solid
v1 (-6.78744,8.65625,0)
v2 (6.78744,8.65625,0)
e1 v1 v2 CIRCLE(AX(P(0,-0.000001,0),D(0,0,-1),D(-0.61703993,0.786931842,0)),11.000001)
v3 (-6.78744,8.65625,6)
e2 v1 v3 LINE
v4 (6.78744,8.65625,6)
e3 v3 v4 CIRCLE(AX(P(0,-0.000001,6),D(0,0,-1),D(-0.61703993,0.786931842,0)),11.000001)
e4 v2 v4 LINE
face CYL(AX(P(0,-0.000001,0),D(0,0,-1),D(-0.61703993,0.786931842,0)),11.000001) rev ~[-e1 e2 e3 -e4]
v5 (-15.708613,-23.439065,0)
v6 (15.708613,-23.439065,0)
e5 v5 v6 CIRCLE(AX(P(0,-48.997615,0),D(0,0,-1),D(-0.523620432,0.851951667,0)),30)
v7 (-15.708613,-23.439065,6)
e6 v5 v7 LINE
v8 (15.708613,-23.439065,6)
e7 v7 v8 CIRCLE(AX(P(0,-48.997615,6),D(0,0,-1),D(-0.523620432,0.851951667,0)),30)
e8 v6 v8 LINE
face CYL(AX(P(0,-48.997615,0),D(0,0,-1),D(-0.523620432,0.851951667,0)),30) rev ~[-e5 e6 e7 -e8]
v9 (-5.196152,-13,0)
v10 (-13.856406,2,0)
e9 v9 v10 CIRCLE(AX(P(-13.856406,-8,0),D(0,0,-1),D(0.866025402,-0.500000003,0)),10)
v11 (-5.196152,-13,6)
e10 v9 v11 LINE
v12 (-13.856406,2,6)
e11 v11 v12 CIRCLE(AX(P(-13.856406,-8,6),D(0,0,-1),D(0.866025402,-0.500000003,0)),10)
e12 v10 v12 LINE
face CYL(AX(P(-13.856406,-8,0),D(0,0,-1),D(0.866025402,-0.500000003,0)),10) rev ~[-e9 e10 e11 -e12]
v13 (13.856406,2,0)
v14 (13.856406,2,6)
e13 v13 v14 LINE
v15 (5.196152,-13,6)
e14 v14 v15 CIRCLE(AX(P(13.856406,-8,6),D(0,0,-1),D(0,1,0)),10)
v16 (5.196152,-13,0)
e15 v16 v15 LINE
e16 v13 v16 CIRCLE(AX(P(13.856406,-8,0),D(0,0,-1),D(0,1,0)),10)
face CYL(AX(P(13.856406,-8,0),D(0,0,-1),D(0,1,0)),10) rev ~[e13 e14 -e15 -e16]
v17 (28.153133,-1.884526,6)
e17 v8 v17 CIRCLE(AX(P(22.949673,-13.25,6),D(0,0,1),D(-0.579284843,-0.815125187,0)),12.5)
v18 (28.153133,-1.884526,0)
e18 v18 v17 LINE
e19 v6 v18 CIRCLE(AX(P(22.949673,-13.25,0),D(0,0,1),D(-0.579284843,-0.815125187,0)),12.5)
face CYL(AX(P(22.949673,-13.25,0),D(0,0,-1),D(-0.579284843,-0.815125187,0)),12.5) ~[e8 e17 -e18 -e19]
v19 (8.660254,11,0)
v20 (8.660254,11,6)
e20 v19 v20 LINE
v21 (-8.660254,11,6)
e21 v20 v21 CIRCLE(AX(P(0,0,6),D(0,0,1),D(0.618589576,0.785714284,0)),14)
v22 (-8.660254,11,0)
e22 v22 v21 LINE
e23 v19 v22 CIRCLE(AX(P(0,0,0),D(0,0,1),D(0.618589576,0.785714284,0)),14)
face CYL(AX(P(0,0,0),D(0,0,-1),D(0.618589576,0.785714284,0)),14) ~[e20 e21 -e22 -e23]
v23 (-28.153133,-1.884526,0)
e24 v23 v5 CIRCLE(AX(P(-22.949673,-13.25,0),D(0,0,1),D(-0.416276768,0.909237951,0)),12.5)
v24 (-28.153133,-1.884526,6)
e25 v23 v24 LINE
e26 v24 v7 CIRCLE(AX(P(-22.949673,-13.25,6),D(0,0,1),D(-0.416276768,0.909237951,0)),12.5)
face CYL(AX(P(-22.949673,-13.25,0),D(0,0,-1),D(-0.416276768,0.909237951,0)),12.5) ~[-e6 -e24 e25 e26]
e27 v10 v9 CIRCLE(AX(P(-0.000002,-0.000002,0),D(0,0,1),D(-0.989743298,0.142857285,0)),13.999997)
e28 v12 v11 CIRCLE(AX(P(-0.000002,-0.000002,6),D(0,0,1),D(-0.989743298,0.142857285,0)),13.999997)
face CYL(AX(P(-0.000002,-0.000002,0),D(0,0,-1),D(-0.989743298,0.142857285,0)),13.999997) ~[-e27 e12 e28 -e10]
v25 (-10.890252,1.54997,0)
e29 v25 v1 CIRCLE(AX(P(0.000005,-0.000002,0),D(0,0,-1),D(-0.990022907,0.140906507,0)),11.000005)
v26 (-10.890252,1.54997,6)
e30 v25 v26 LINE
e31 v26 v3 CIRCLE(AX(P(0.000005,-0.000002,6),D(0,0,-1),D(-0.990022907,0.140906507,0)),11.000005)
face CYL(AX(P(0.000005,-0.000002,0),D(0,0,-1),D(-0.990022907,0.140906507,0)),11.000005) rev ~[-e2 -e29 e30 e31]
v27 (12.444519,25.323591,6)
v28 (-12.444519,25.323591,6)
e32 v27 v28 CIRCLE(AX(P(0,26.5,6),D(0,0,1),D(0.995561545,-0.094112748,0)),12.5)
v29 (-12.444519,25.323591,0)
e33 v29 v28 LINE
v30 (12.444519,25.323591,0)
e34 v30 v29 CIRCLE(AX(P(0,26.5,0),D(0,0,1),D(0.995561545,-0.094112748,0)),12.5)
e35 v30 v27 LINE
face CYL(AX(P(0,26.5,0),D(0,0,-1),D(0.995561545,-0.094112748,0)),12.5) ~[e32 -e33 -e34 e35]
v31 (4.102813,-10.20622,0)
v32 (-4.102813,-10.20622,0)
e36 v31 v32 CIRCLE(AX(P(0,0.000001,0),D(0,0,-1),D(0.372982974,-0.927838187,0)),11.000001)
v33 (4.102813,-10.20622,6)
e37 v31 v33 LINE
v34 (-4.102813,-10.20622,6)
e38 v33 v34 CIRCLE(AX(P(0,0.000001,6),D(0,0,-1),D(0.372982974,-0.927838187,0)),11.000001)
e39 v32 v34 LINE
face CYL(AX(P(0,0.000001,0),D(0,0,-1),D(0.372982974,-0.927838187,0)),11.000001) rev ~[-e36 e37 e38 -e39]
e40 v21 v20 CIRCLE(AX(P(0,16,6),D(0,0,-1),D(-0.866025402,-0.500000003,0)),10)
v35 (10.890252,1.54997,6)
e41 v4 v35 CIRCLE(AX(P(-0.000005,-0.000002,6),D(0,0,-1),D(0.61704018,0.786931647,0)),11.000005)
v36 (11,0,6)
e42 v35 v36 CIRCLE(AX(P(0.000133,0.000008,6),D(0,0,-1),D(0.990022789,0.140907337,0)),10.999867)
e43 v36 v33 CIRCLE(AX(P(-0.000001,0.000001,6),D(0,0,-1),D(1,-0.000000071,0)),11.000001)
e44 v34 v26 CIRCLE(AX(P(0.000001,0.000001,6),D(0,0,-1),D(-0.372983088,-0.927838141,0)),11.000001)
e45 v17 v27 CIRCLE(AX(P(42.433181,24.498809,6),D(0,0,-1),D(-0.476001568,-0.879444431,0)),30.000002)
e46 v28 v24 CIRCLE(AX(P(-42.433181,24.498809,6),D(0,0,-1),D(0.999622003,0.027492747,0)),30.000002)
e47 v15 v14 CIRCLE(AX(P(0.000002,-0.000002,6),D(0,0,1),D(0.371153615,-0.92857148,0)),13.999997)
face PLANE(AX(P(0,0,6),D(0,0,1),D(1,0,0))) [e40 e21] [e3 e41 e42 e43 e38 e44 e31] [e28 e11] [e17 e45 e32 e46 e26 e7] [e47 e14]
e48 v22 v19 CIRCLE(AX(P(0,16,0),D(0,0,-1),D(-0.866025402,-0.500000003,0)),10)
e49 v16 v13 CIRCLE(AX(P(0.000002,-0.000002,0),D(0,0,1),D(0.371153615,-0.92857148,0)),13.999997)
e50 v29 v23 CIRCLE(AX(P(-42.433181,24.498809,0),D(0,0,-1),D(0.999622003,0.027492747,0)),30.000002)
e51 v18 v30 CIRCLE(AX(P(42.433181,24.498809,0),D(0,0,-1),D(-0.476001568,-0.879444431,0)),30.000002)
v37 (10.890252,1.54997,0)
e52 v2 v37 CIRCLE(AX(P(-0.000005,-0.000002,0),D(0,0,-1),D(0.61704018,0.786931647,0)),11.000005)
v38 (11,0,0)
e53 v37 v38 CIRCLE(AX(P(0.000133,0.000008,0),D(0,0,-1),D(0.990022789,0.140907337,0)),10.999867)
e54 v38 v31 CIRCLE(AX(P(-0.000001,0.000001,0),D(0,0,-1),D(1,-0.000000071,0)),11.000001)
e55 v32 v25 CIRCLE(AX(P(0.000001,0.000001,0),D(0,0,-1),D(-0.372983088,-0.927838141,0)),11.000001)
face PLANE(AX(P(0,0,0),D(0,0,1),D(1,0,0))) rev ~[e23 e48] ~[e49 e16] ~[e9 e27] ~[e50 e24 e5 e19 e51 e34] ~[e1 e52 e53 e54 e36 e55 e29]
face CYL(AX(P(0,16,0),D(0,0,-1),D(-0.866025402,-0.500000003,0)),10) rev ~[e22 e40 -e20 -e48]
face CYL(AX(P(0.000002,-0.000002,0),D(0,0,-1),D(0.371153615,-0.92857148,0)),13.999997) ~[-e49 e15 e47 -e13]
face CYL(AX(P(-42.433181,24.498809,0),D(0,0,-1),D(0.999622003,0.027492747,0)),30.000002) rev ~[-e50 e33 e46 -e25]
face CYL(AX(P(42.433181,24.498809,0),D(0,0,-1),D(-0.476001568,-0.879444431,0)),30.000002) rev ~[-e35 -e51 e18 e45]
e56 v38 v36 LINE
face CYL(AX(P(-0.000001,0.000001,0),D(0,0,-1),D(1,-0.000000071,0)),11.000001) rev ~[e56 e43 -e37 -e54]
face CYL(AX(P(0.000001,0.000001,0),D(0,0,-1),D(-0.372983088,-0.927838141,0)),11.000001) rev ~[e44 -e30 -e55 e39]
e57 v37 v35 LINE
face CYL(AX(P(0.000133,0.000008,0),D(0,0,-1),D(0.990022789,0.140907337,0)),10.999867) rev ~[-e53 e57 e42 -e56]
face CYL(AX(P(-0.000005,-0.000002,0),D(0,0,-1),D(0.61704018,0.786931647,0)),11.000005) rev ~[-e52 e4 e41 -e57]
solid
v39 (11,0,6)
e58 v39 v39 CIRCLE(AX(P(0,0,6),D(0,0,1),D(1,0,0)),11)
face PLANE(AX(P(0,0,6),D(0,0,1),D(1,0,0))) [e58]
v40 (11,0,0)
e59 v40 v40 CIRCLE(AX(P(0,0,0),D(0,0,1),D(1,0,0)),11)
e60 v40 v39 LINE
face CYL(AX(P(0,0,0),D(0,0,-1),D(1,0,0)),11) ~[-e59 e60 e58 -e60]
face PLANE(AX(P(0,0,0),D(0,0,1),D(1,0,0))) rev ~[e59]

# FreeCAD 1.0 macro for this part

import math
import FreeCAD as App
import Part
import Sketcher

V = App.Vector

doc = App.newDocument("Part")
params = doc.addObject("Spreadsheet::Sheet", "Params")
for row, (alias, value) in enumerate([
    ("sketch1_radius", "30.000002 mm"),
    ("sketch1_radius2", "30.000002 mm"),
    ("sketch1_radius3", "30 mm"),
    ("sketch1_radius4", "10 mm"),
    ("sketch1_radius5", "10 mm"),
    ("pad1_length", "6 mm"),
    ("sketch2_diameter", "22 mm"),
    ("pad2_length", "6 mm"),
], start=1):
    params.set(f"A{row}", alias)
    params.set(f"B{row}", "=" + value)
    params.setAlias(f"B{row}", alias)

body = doc.addObject("PartDesign::Body", "Body")

sketch1 = doc.addObject("Sketcher::SketchObject", "Sketch")
body.addObject(sketch1)
sketch1.AttachmentSupport = (doc.XY_Plane, [""])
sketch1.MapMode = "FlatFace"
sketch1.addGeometry(Part.ArcOfCircle(Part.Circle(V(42.433181, 24.498809, 0), V(0, 0, 1), 30.000002), math.radians(178.424583), math.radians(241.575418)), False)
sketch1.addGeometry(Part.ArcOfCircle(Part.Circle(V(0, 26.5, 0), V(0, 0, 1), 12.5), math.radians(-5.400255), math.radians(185.400255)), False)
sketch1.addGeometry(Part.ArcOfCircle(Part.Circle(V(-42.433181, 24.498809, 0), V(0, 0, 1), 30.000002), math.radians(-61.575418), math.radians(1.575417)), False)
sketch1.addGeometry(Part.ArcOfCircle(Part.Circle(V(-22.949673, -13.25, 0), V(0, 0, 1), 12.5), math.radians(114.599746), math.radians(305.400258)), False)
sketch1.addGeometry(Part.ArcOfCircle(Part.Circle(V(0, -48.997615, 0), V(0, 0, 1), 30), math.radians(58.424582), math.radians(121.575418)), False)
sketch1.addGeometry(Part.ArcOfCircle(Part.Circle(V(22.949673, -13.25, 0), V(0, 0, 1), 12.5), math.radians(-125.400258), math.radians(65.400254)), False)
sketch1.addGeometry(Part.ArcOfCircle(Part.Circle(V(-13.856406, -8, 0), V(0, 0, 1), 10), math.radians(90), math.radians(330)), False)
sketch1.addGeometry(Part.ArcOfCircle(Part.Circle(V(-0.000002, -0.000002, 0), V(0, 0, 1), 13.999997), math.radians(171.786781), math.radians(248.213219)), False)
sketch1.addGeometry(Part.ArcOfCircle(Part.Circle(V(13.856406, -8, 0), V(0, 0, 1), 10), math.radians(-150), math.radians(90)), False)
sketch1.addGeometry(Part.ArcOfCircle(Part.Circle(V(0.000002, -0.000002, 0), V(0, 0, 1), 13.999997), math.radians(-68.213219), math.radians(8.213219)), False)
sketch1.addGeometry(Part.ArcOfCircle(Part.Circle(V(0.000001, 0.000001, 0), V(0, 0, 1), 11.000001), math.radians(171.899707), math.radians(248.10029)), False)
sketch1.addGeometry(Part.ArcOfCircle(Part.Circle(V(0.000005, -0.000002, 0), V(0, 0, 1), 11.000005), math.radians(128.100313), math.radians(171.899695)), False)
sketch1.addGeometry(Part.ArcOfCircle(Part.Circle(V(0, -0.000001, 0), V(0, 0, 1), 11.000001), math.radians(51.899705), math.radians(128.100295)), False)
sketch1.addGeometry(Part.ArcOfCircle(Part.Circle(V(-0.000005, -0.000002, 0), V(0, 0, 1), 11.000005), math.radians(8.100305), math.radians(51.899687)), False)
sketch1.addGeometry(Part.ArcOfCircle(Part.Circle(V(0.000133, 0.000008, 0), V(0, 0, 1), 10.999867), math.radians(-0.000042), math.radians(8.100353)), False)
sketch1.addGeometry(Part.ArcOfCircle(Part.Circle(V(-0.000001, 0.000001, 0), V(0, 0, 1), 11.000001), math.radians(-68.100291), math.radians(-0.000004)), False)
sketch1.addGeometry(Part.ArcOfCircle(Part.Circle(V(0, 0.000001, 0), V(0, 0, 1), 11.000001), math.radians(-111.899703), math.radians(-68.100297)), False)
sketch1.addGeometry(Part.ArcOfCircle(Part.Circle(V(0, 0, 0), V(0, 0, 1), 14), math.radians(51.786789), math.radians(128.213211)), False)
sketch1.addGeometry(Part.ArcOfCircle(Part.Circle(V(0, 16, 0), V(0, 0, 1), 10), math.radians(-30), math.radians(210)), False)
sketch1.addConstraint(Sketcher.Constraint("Coincident", 0, 1, 1, 1))
sketch1.addConstraint(Sketcher.Constraint("Coincident", 1, 2, 2, 2))
sketch1.addConstraint(Sketcher.Constraint("Coincident", 2, 1, 3, 1))
sketch1.addConstraint(Sketcher.Constraint("Coincident", 3, 2, 4, 2))
sketch1.addConstraint(Sketcher.Constraint("Coincident", 4, 1, 5, 1))
sketch1.addConstraint(Sketcher.Constraint("Coincident", 5, 2, 0, 2))
sketch1.addConstraint(Sketcher.Constraint("Coincident", 6, 1, 7, 1))
sketch1.addConstraint(Sketcher.Constraint("Coincident", 7, 2, 6, 2))
sketch1.addConstraint(Sketcher.Constraint("Coincident", 8, 1, 9, 1))
sketch1.addConstraint(Sketcher.Constraint("Coincident", 9, 2, 8, 2))
sketch1.addConstraint(Sketcher.Constraint("Coincident", 10, 1, 11, 2))
sketch1.addConstraint(Sketcher.Constraint("Coincident", 11, 1, 12, 2))
sketch1.addConstraint(Sketcher.Constraint("Coincident", 12, 1, 13, 2))
sketch1.addConstraint(Sketcher.Constraint("Coincident", 13, 1, 14, 2))
sketch1.addConstraint(Sketcher.Constraint("Coincident", 14, 1, 15, 2))
sketch1.addConstraint(Sketcher.Constraint("Coincident", 15, 1, 16, 2))
sketch1.addConstraint(Sketcher.Constraint("Coincident", 16, 1, 10, 2))
sketch1.addConstraint(Sketcher.Constraint("Coincident", 17, 1, 18, 1))
sketch1.addConstraint(Sketcher.Constraint("Coincident", 18, 2, 17, 2))
sketch1.addConstraint(Sketcher.Constraint("Coincident", 7, 3, -1, 1))
sketch1.addConstraint(Sketcher.Constraint("Coincident", 9, 3, -1, 1))
sketch1.addConstraint(Sketcher.Constraint("Coincident", 10, 3, -1, 1))
sketch1.addConstraint(Sketcher.Constraint("Coincident", 11, 3, -1, 1))
sketch1.addConstraint(Sketcher.Constraint("Coincident", 12, 3, -1, 1))
sketch1.addConstraint(Sketcher.Constraint("Coincident", 13, 3, -1, 1))
sketch1.addConstraint(Sketcher.Constraint("Coincident", 15, 3, -1, 1))
sketch1.addConstraint(Sketcher.Constraint("Coincident", 16, 3, -1, 1))
sketch1.addConstraint(Sketcher.Constraint("Coincident", 17, 3, -1, 1))
sketch1.addConstraint(Sketcher.Constraint("PointOnObject", 1, 3, -2))
sketch1.addConstraint(Sketcher.Constraint("PointOnObject", 4, 3, -2))
sketch1.addConstraint(Sketcher.Constraint("PointOnObject", 18, 3, -2))
sketch1.addConstraint(Sketcher.Constraint("PointOnObject", 14, 1, -1))
sketch1.addConstraint(Sketcher.Constraint("Radius", 0, 30.000002))
sketch1.addConstraint(Sketcher.Constraint("Radius", 2, 30.000002))
sketch1.addConstraint(Sketcher.Constraint("Radius", 4, 30.0))
sketch1.addConstraint(Sketcher.Constraint("Radius", 6, 10.0))
sketch1.addConstraint(Sketcher.Constraint("Radius", 8, 10.0))
sketch1.addConstraint(Sketcher.Constraint("Radius", 10, 11.000001))
sketch1.addConstraint(Sketcher.Constraint("Radius", 17, 14.0))
sketch1.addConstraint(Sketcher.Constraint("Radius", 18, 10.0))
sketch1.addConstraint(Sketcher.Constraint("Radius", 1, 12.5))
sketch1.addConstraint(Sketcher.Constraint("Radius", 3, 12.5))
sketch1.addConstraint(Sketcher.Constraint("Radius", 5, 12.5))
sketch1.addConstraint(Sketcher.Constraint("DistanceY", 6, 3, -1, 1, 8.0))
sketch1.addConstraint(Sketcher.Constraint("DistanceY", 8, 3, -1, 1, 8.0))
sketch1.addConstraint(Sketcher.Constraint("DistanceY", -1, 1, 18, 3, 16.0))
sketch1.addConstraint(Sketcher.Constraint("DistanceY", 7, 2, -1, 1, 13.0))
sketch1.addConstraint(Sketcher.Constraint("DistanceY", 8, 1, -1, 1, 13.0))
sketch1.addConstraint(Sketcher.Constraint("DistanceY", -1, 1, 1, 3, 26.5))
sketch1.addConstraint(Sketcher.Constraint("DistanceY", 3, 3, -1, 1, 13.25))
sketch1.addConstraint(Sketcher.Constraint("DistanceY", 5, 3, -1, 1, 13.25))
sketch1.addConstraint(Sketcher.Constraint("DistanceX", 17, 1, 13, 1, 2.229998))
sketch1.addConstraint(Sketcher.Constraint("DistanceX", 10, 1, 18, 2, 2.229998))
sketch1.addConstraint(Sketcher.Constraint("Radius", 7, 13.999997))
sketch1.addConstraint(Sketcher.Constraint("Radius", 9, 13.999997))
sketch1.addConstraint(Sketcher.Constraint("Radius", 14, 10.999867))
sketch1.addConstraint(Sketcher.Constraint("DistanceX", 14, 3, 5, 2, 28.153))
sketch1.addConstraint(Sketcher.Constraint("DistanceX", -1, 1, 0, 3, 42.433181))
sketch1.addConstraint(Sketcher.Constraint("DistanceY", -1, 1, 0, 3, 24.498809))
sketch1.addConstraint(Sketcher.Constraint("DistanceX", 2, 3, -1, 1, 42.433181))
sketch1.addConstraint(Sketcher.Constraint("DistanceY", -1, 1, 2, 3, 24.498809))
sketch1.addConstraint(Sketcher.Constraint("DistanceX", 11, 1, -1, 1, 6.78744))
sketch1.addConstraint(Sketcher.Constraint("DistanceX", -1, 1, 12, 1, 6.78744))
sketch1.addConstraint(Sketcher.Constraint("DistanceY", 15, 1, -1, 1, 10.20622))
sketch1.addConstraint(Sketcher.Constraint("DistanceY", 16, 1, -1, 1, 10.20622))
sketch1.addConstraint(Sketcher.Constraint("DistanceX", 3, 3, 7, 3, 22.949671))
sketch1.addConstraint(Sketcher.Constraint("DistanceX", 3, 3, 3, 2, 7.24106))
sketch1.setExpression("Constraints[32]", "Params.sketch1_radius")
sketch1.setExpression("Constraints[33]", "Params.sketch1_radius2")
sketch1.setExpression("Constraints[34]", "Params.sketch1_radius3")
sketch1.setExpression("Constraints[35]", "Params.sketch1_radius4")
sketch1.setExpression("Constraints[36]", "Params.sketch1_radius5")
pad1 = doc.addObject("PartDesign::Pad", "Pad")
body.addObject(pad1)
pad1.Profile = sketch1
pad1.setExpression("Length", "Params.pad1_length")
body2 = doc.addObject("PartDesign::Body", "Body001")

sketch2 = doc.addObject("Sketcher::SketchObject", "Sketch001")
body2.addObject(sketch2)
sketch2.AttachmentSupport = (doc.getObject("XY_Plane001"), [""])
sketch2.MapMode = "FlatFace"
sketch2.addGeometry(Part.Circle(V(0, 0, 0), V(0, 0, 1), 11), False)
sketch2.addConstraint(Sketcher.Constraint("Coincident", 0, 3, -1, 1))
sketch2.addConstraint(Sketcher.Constraint("Diameter", 0, 22.0))
sketch2.setExpression("Constraints[1]", "Params.sketch2_diameter")
pad2 = doc.addObject("PartDesign::Pad", "Pad001")
body2.addObject(pad2)
pad2.Profile = sketch2
pad2.setExpression("Length", "Params.pad2_length")

doc.recompute()
